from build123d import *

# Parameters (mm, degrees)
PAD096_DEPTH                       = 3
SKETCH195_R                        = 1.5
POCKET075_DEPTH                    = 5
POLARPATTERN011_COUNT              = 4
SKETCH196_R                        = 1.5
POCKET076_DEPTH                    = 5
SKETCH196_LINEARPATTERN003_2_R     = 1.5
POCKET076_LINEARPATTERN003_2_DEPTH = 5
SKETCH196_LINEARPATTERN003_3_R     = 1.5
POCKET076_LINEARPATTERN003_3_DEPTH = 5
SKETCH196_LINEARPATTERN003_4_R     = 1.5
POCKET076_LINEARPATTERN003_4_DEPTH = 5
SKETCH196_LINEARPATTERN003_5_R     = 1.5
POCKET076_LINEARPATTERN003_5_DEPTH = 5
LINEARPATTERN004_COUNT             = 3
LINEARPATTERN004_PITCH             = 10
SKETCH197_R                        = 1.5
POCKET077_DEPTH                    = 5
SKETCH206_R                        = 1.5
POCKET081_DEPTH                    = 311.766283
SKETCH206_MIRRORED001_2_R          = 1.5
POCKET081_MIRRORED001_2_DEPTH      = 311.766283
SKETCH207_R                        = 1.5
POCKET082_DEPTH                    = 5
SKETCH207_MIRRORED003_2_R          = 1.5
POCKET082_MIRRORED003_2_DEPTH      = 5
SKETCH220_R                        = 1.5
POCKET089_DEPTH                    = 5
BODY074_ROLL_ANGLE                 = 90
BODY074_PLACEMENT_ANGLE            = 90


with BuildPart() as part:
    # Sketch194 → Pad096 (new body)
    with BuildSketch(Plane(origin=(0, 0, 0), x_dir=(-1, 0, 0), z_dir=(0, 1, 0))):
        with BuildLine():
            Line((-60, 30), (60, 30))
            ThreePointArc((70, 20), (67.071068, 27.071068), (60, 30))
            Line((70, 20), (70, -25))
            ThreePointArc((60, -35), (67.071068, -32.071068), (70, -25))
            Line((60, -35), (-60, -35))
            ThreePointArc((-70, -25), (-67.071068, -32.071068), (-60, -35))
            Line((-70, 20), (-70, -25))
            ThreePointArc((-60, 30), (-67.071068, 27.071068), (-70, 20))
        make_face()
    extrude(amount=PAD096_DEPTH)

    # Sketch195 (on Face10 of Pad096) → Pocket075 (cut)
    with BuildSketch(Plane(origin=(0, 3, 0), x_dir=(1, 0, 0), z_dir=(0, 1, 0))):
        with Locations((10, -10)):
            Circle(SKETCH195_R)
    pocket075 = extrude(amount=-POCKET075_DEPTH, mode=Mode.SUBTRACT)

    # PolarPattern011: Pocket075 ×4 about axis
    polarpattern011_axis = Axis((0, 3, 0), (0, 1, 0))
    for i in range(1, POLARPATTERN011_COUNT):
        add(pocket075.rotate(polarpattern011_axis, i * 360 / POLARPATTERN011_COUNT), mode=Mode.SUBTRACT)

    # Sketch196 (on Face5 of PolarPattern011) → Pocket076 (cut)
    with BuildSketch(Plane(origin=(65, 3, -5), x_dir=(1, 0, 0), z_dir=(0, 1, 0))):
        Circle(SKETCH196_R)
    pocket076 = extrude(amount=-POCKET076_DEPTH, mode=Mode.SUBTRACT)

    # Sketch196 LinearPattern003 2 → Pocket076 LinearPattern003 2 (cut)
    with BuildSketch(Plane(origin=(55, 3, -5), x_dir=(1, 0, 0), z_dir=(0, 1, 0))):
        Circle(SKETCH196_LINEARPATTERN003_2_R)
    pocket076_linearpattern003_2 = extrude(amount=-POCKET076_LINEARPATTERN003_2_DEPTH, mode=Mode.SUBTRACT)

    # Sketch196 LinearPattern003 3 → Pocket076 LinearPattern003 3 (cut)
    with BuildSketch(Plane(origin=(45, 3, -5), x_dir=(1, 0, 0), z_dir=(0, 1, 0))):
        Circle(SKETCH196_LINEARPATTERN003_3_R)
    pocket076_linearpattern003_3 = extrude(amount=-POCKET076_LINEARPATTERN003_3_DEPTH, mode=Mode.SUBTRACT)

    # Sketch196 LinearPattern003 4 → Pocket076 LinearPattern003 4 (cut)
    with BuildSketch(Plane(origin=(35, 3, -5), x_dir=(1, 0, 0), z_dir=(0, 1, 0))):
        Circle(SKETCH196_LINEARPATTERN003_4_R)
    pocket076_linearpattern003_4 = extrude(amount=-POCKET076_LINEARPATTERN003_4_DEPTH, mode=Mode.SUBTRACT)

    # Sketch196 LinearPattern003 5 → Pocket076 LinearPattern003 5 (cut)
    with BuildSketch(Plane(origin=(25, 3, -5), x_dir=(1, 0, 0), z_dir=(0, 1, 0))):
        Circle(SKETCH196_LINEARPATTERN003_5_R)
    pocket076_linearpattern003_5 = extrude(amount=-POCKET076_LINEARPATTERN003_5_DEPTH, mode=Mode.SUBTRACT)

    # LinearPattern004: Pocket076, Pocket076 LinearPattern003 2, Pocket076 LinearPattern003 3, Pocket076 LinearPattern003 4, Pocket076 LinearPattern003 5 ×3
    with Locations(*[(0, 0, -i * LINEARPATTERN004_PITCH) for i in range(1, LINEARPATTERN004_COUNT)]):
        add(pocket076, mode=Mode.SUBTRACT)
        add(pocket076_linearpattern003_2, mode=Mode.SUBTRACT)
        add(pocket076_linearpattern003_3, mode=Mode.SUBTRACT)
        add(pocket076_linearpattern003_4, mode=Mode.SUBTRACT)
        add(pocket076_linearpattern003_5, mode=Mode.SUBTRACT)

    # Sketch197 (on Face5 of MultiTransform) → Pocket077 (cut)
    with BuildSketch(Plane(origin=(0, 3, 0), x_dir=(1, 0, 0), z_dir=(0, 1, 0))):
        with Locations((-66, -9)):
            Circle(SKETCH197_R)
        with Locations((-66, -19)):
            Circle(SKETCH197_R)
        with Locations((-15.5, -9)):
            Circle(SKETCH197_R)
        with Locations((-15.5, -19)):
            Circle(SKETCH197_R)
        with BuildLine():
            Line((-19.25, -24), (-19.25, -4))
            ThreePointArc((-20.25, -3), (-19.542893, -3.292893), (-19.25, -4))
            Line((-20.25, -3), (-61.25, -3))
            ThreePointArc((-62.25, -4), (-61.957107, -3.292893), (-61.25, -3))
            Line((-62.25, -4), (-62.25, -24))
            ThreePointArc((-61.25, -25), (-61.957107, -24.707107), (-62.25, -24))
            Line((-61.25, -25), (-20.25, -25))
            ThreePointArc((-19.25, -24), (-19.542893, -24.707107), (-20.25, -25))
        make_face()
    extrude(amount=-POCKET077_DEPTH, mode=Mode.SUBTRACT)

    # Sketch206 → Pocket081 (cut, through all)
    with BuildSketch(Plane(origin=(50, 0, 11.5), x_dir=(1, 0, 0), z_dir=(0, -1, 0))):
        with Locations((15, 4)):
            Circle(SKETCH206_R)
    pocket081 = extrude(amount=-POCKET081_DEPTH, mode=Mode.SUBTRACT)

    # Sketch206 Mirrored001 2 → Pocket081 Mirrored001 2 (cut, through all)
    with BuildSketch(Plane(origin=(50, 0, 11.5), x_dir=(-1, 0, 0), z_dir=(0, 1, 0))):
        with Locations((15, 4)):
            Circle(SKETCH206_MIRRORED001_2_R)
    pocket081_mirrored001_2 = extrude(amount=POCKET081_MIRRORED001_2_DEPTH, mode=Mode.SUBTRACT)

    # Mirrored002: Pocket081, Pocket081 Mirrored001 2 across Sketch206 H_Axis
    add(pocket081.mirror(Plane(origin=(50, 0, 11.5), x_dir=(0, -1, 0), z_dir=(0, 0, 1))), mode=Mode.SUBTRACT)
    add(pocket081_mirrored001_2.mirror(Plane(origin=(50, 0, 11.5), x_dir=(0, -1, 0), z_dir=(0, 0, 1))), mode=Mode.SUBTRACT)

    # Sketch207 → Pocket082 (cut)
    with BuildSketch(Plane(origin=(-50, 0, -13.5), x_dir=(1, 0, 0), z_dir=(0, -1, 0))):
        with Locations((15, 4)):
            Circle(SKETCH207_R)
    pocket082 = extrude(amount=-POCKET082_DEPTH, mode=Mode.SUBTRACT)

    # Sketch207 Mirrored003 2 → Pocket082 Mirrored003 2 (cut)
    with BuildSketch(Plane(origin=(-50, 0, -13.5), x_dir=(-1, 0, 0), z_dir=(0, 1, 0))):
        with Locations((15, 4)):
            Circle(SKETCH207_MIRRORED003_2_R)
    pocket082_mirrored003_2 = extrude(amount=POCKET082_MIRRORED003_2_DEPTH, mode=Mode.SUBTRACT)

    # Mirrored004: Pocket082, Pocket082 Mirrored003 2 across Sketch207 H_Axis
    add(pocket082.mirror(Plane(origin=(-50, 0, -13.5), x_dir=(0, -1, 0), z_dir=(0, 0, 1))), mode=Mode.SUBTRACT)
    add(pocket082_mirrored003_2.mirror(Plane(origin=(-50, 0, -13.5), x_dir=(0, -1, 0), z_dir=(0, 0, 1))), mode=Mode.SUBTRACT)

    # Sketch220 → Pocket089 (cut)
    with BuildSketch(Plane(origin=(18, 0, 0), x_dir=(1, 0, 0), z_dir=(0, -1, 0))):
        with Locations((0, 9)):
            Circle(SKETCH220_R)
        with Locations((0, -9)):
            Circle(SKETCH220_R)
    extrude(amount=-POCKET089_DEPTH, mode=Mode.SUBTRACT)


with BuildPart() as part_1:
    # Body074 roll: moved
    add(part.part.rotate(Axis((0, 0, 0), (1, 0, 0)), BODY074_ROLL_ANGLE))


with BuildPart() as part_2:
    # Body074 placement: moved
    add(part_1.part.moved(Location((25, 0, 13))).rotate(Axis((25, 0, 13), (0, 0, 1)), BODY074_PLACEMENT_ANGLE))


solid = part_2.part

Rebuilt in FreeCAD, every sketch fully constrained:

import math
import FreeCAD as App
import Part
import Sketcher
Q = App.Units.Quantity

doc = App.newDocument("Part")
body = doc.addObject("PartDesign::Body", "Body")

# Sketch on XZ plane
sketch1 = body.newObject("Sketcher::SketchObject", "Sketch")
sketch1.AttachmentSupport = (doc.getObject("XZ_Plane"), [""])
sketch1.MapMode = "FlatFace"
sketch1.addGeometry(Part.LineSegment(App.Vector(-60, 30, 0), App.Vector(60, 30, 0)), False)
sketch1.addGeometry(Part.ArcOfCircle(Part.Circle(App.Vector(60.000001, 20.000001, 0), App.Vector(0, 0, 1), 9.999999), math.radians(-0.000004), math.radians(90.000004)), False)
sketch1.addGeometry(Part.LineSegment(App.Vector(70, 20, 0), App.Vector(70, -25, 0)), False)
sketch1.addGeometry(Part.ArcOfCircle(Part.Circle(App.Vector(60.000001, -25.000001, 0), App.Vector(0, 0, 1), 9.999999), math.radians(-90.000004), math.radians(0.000004)), False)
sketch1.addGeometry(Part.LineSegment(App.Vector(60, -35, 0), App.Vector(-60, -35, 0)), False)
sketch1.addGeometry(Part.ArcOfCircle(Part.Circle(App.Vector(-60.000001, -25.000001, 0), App.Vector(0, 0, 1), 9.999999), math.radians(179.999996), math.radians(270.000004)), False)
sketch1.addGeometry(Part.LineSegment(App.Vector(-70, -25, 0), App.Vector(-70, 20, 0)), False)
sketch1.addGeometry(Part.ArcOfCircle(Part.Circle(App.Vector(-60.000001, 20.000001, 0), App.Vector(0, 0, 1), 9.999999), math.radians(89.999996), math.radians(180.000004)), False)
sketch1.addConstraint(Sketcher.Constraint("Tangent", 0, 2, 1, 2))
sketch1.addConstraint(Sketcher.Constraint("Tangent", 1, 1, 2, 1))
sketch1.addConstraint(Sketcher.Constraint("Tangent", 2, 2, 3, 2))
sketch1.addConstraint(Sketcher.Constraint("Tangent", 3, 1, 4, 1))
sketch1.addConstraint(Sketcher.Constraint("Tangent", 4, 2, 5, 2))
sketch1.addConstraint(Sketcher.Constraint("Tangent", 5, 1, 6, 1))
sketch1.addConstraint(Sketcher.Constraint("Tangent", 6, 2, 7, 2))
sketch1.addConstraint(Sketcher.Constraint("Tangent", 7, 1, 0, 1))
sketch1.addConstraint(Sketcher.Constraint("Horizontal", 0))
sketch1.addConstraint(Sketcher.Constraint("Vertical", 2))
sketch1.addConstraint(Sketcher.Constraint("Horizontal", 4))
sketch1.addConstraint(Sketcher.Constraint("Vertical", 6))
sketch1.addConstraint(Sketcher.Constraint("Equal", 1, 3))
sketch1.addConstraint(Sketcher.Constraint("Equal", 3, 5))
sketch1.addConstraint(Sketcher.Constraint("Equal", 5, 7))
sketch1.addConstraint(Sketcher.Constraint("Radius", 1, Q("9.999999 mm")))
sketch1.addConstraint(Sketcher.Constraint("DistanceX", 0, 1, 0, 2, Q("120 mm")))
sketch1.addConstraint(Sketcher.Constraint("DistanceY", 2, 2, 2, 1, Q("45 mm")))
sketch1.addConstraint(Sketcher.Constraint("DistanceX", -1, 1, 1, 3, Q("60.000001 mm")))
sketch1.addConstraint(Sketcher.Constraint("DistanceY", -1, 1, 1, 3, Q("20.000001 mm")))
pad1 = body.newObject("PartDesign::Pad", "Pad")
pad1.Profile = sketch1
pad1.Length = 3
pad1.Reversed = True

# Sketch on XZ plane
sketch2 = body.newObject("Sketcher::SketchObject", "Sketch001")
sketch2.AttachmentSupport = (doc.getObject("XZ_Plane"), [""])
sketch2.MapMode = "FlatFace"
sketch2.AttachmentOffset = App.Placement(App.Vector(0, 0, -3), App.Rotation())
sketch2.addGeometry(Part.Circle(App.Vector(10, 10, 0), App.Vector(0, 0, 1), 1.5), False)
sketch2.addConstraint(Sketcher.Constraint("Diameter", 0, Q("3 mm")))
sketch2.addConstraint(Sketcher.Constraint("DistanceX", -1, 1, 0, 3, Q("10 mm")))
sketch2.addConstraint(Sketcher.Constraint("DistanceY", -1, 1, 0, 3, Q("10 mm")))
pocket1 = body.newObject("PartDesign::Pocket", "Pocket")
pocket1.Profile = sketch2
pocket1.Length = 5
pocket1.Reversed = True
doc.recompute()

polarpattern = body.newObject("PartDesign::PolarPattern", "PolarPattern")
polarpattern.Originals = [pocket1]
polarpattern.Axis = (doc.getObject("Y_Axis"), [""])
polarpattern.Angle = 360
polarpattern.Occurrences = 4
body.Tip = polarpattern

# Sketch on XZ plane
sketch3 = body.newObject("Sketcher::SketchObject", "Sketch002")
sketch3.AttachmentSupport = (doc.getObject("XZ_Plane"), [""])
sketch3.MapMode = "FlatFace"
sketch3.AttachmentOffset = App.Placement(App.Vector(0, 0, -3), App.Rotation())
sketch3.addGeometry(Part.Circle(App.Vector(65, -5, 0), App.Vector(0, 0, 1), 1.5), False)
sketch3.addConstraint(Sketcher.Constraint("Diameter", 0, Q("3 mm")))
sketch3.addConstraint(Sketcher.Constraint("DistanceX", -1, 1, 0, 3, Q("65 mm")))
sketch3.addConstraint(Sketcher.Constraint("DistanceY", 0, 3, -1, 1, Q("5 mm")))
pocket2 = body.newObject("PartDesign::Pocket", "Pocket001")
pocket2.Profile = sketch3
pocket2.Length = 5
pocket2.Reversed = True

# Sketch on XZ plane
sketch4 = body.newObject("Sketcher::SketchObject", "Sketch003")
sketch4.AttachmentSupport = (doc.getObject("XZ_Plane"), [""])
sketch4.MapMode = "FlatFace"
sketch4.AttachmentOffset = App.Placement(App.Vector(0, 0, -3), App.Rotation())
sketch4.addGeometry(Part.Circle(App.Vector(55, -5, 0), App.Vector(0, 0, 1), 1.5), False)
sketch4.addConstraint(Sketcher.Constraint("Diameter", 0, Q("3 mm")))
sketch4.addConstraint(Sketcher.Constraint("DistanceX", -1, 1, 0, 3, Q("55 mm")))
sketch4.addConstraint(Sketcher.Constraint("DistanceY", 0, 3, -1, 1, Q("5 mm")))
pocket3 = body.newObject("PartDesign::Pocket", "Pocket002")
pocket3.Profile = sketch4
pocket3.Length = 5
pocket3.Reversed = True

# Sketch on XZ plane
sketch5 = body.newObject("Sketcher::SketchObject", "Sketch004")
sketch5.AttachmentSupport = (doc.getObject("XZ_Plane"), [""])
sketch5.MapMode = "FlatFace"
sketch5.AttachmentOffset = App.Placement(App.Vector(0, 0, -3), App.Rotation())
sketch5.addGeometry(Part.Circle(App.Vector(45, -5, 0), App.Vector(0, 0, 1), 1.5), False)
sketch5.addConstraint(Sketcher.Constraint("Diameter", 0, Q("3 mm")))
sketch5.addConstraint(Sketcher.Constraint("DistanceX", -1, 1, 0, 3, Q("45 mm")))
sketch5.addConstraint(Sketcher.Constraint("DistanceY", 0, 3, -1, 1, Q("5 mm")))
pocket4 = body.newObject("PartDesign::Pocket", "Pocket003")
pocket4.Profile = sketch5
pocket4.Length = 5
pocket4.Reversed = True

# Sketch on XZ plane
sketch6 = body.newObject("Sketcher::SketchObject", "Sketch005")
sketch6.AttachmentSupport = (doc.getObject("XZ_Plane"), [""])
sketch6.MapMode = "FlatFace"
sketch6.AttachmentOffset = App.Placement(App.Vector(0, 0, -3), App.Rotation())
sketch6.addGeometry(Part.Circle(App.Vector(35, -5, 0), App.Vector(0, 0, 1), 1.5), False)
sketch6.addConstraint(Sketcher.Constraint("Diameter", 0, Q("3 mm")))
sketch6.addConstraint(Sketcher.Constraint("DistanceX", -1, 1, 0, 3, Q("35 mm")))
sketch6.addConstraint(Sketcher.Constraint("DistanceY", 0, 3, -1, 1, Q("5 mm")))
pocket5 = body.newObject("PartDesign::Pocket", "Pocket004")
pocket5.Profile = sketch6
pocket5.Length = 5
pocket5.Reversed = True

# Sketch on XZ plane
sketch7 = body.newObject("Sketcher::SketchObject", "Sketch006")
sketch7.AttachmentSupport = (doc.getObject("XZ_Plane"), [""])
sketch7.MapMode = "FlatFace"
sketch7.AttachmentOffset = App.Placement(App.Vector(0, 0, -3), App.Rotation())
sketch7.addGeometry(Part.Circle(App.Vector(25, -5, 0), App.Vector(0, 0, 1), 1.5), False)
sketch7.addConstraint(Sketcher.Constraint("Diameter", 0, Q("3 mm")))
sketch7.addConstraint(Sketcher.Constraint("DistanceX", -1, 1, 0, 3, Q("25 mm")))
sketch7.addConstraint(Sketcher.Constraint("DistanceY", 0, 3, -1, 1, Q("5 mm")))
pocket6 = body.newObject("PartDesign::Pocket", "Pocket005")
pocket6.Profile = sketch7
pocket6.Length = 5
pocket6.Reversed = True
doc.recompute()

linearpattern = body.newObject("PartDesign::LinearPattern", "LinearPattern")
linearpattern.Originals = [pocket2, pocket3, pocket4, pocket5, pocket6]
linearpattern.Direction = (doc.getObject("Z_Axis"), [""])
linearpattern.Mode = "offset"
linearpattern.Offset = 10
linearpattern.Occurrences = 3
linearpattern.Reversed = True
body.Tip = linearpattern

# Sketch on XZ plane
sketch8 = body.newObject("Sketcher::SketchObject", "Sketch007")
sketch8.AttachmentSupport = (doc.getObject("XZ_Plane"), [""])
sketch8.MapMode = "FlatFace"
sketch8.AttachmentOffset = App.Placement(App.Vector(0, 0, -3), App.Rotation())
sketch8.addGeometry(Part.Circle(App.Vector(-66, 9, 0), App.Vector(0, 0, 1), 1.5), False)
sketch8.addGeometry(Part.Circle(App.Vector(-66, 19, 0), App.Vector(0, 0, 1), 1.5), False)
sketch8.addGeometry(Part.Circle(App.Vector(-15.5, 9, 0), App.Vector(0, 0, 1), 1.5), False)
sketch8.addGeometry(Part.Circle(App.Vector(-15.5, 19, 0), App.Vector(0, 0, 1), 1.5), False)
sketch8.addGeometry(Part.LineSegment(App.Vector(-19.25, 24, 0), App.Vector(-19.25, 4, 0)), False)
sketch8.addGeometry(Part.ArcOfCircle(Part.Circle(App.Vector(-20.249999, 3.999999, 0), App.Vector(0, 0, 1), 0.999999), math.radians(-90.000043), math.radians(0.000043)), False)
sketch8.addGeometry(Part.LineSegment(App.Vector(-20.25, 3, 0), App.Vector(-61.25, 3, 0)), False)
sketch8.addGeometry(Part.ArcOfCircle(Part.Circle(App.Vector(-61.250001, 3.999999, 0), App.Vector(0, 0, 1), 0.999999), math.radians(179.999957), math.radians(270.000043)), False)
sketch8.addGeometry(Part.LineSegment(App.Vector(-62.25, 4, 0), App.Vector(-62.25, 24, 0)), False)
sketch8.addGeometry(Part.ArcOfCircle(Part.Circle(App.Vector(-61.250001, 24.000001, 0), App.Vector(0, 0, 1), 0.999999), math.radians(89.999957), math.radians(180.000043)), False)
sketch8.addGeometry(Part.LineSegment(App.Vector(-61.25, 25, 0), App.Vector(-20.25, 25, 0)), False)
sketch8.addGeometry(Part.ArcOfCircle(Part.Circle(App.Vector(-20.249999, 24.000001, 0), App.Vector(0, 0, 1), 0.999999), math.radians(-0.000043), math.radians(90.000043)), False)
sketch8.addConstraint(Sketcher.Constraint("Tangent", 4, 2, 5, 2))
sketch8.addConstraint(Sketcher.Constraint("Tangent", 5, 1, 6, 1))
sketch8.addConstraint(Sketcher.Constraint("Tangent", 6, 2, 7, 2))
sketch8.addConstraint(Sketcher.Constraint("Tangent", 7, 1, 8, 1))
sketch8.addConstraint(Sketcher.Constraint("Tangent", 8, 2, 9, 2))
sketch8.addConstraint(Sketcher.Constraint("Tangent", 9, 1, 10, 1))
sketch8.addConstraint(Sketcher.Constraint("Tangent", 10, 2, 11, 2))
sketch8.addConstraint(Sketcher.Constraint("Tangent", 11, 1, 4, 1))
sketch8.addConstraint(Sketcher.Constraint("Vertical", 4))
sketch8.addConstraint(Sketcher.Constraint("Horizontal", 6))
sketch8.addConstraint(Sketcher.Constraint("Vertical", 8))
sketch8.addConstraint(Sketcher.Constraint("Horizontal", 10))
sketch8.addConstraint(Sketcher.Constraint("Equal", 0, 1))
sketch8.addConstraint(Sketcher.Constraint("Equal", 1, 2))
sketch8.addConstraint(Sketcher.Constraint("Equal", 2, 3))
sketch8.addConstraint(Sketcher.Constraint("Equal", 5, 7))
sketch8.addConstraint(Sketcher.Constraint("Equal", 7, 9))
sketch8.addConstraint(Sketcher.Constraint("Equal", 9, 11))
sketch8.addConstraint(Sketcher.Constraint("Horizontal", 0, 3, 2, 3))
sketch8.addConstraint(Sketcher.Constraint("Horizontal", 1, 3, 3, 3))
sketch8.addConstraint(Sketcher.Constraint("Vertical", 0, 3, 1, 3))
sketch8.addConstraint(Sketcher.Constraint("Vertical", 2, 3, 3, 3))
sketch8.addConstraint(Sketcher.Constraint("Diameter", 0, Q("3 mm")))
sketch8.addConstraint(Sketcher.Constraint("Radius", 5, Q("0.999999 mm")))
sketch8.addConstraint(Sketcher.Constraint("DistanceX", 6, 2, 6, 1, Q("41 mm")))
sketch8.addConstraint(Sketcher.Constraint("DistanceY", 4, 2, 4, 1, Q("20 mm")))
sketch8.addConstraint(Sketcher.Constraint("DistanceX", 0, 3, -1, 1, Q("66 mm")))
sketch8.addConstraint(Sketcher.Constraint("DistanceY", -1, 1, 0, 3, Q("9 mm")))
sketch8.addConstraint(Sketcher.Constraint("DistanceY", -1, 1, 1, 3, Q("19 mm")))
sketch8.addConstraint(Sketcher.Constraint("DistanceY", -1, 1, 5, 3, Q("3.999999 mm")))
sketch8.addConstraint(Sketcher.Constraint("DistanceX", 2, 3, -1, 1, Q("15.5 mm")))
sketch8.addConstraint(Sketcher.Constraint("DistanceX", 5, 3, -1, 1, Q("20.249999 mm")))
pocket7 = body.newObject("PartDesign::Pocket", "Pocket006")
pocket7.Profile = sketch8
pocket7.Length = 5
pocket7.Reversed = True

# Sketch on XZ plane
sketch9 = body.newObject("Sketcher::SketchObject", "Sketch008")
sketch9.AttachmentSupport = (doc.getObject("XZ_Plane"), [""])
sketch9.MapMode = "FlatFace"
sketch9.addGeometry(Part.Circle(App.Vector(65, 15.5, 0), App.Vector(0, 0, 1), 1.5), False)
sketch9.addConstraint(Sketcher.Constraint("Diameter", 0, Q("3 mm")))
sketch9.addConstraint(Sketcher.Constraint("DistanceX", -1, 1, 0, 3, Q("65 mm")))
sketch9.addConstraint(Sketcher.Constraint("DistanceY", -1, 1, 0, 3, Q("15.5 mm")))
pocket8 = body.newObject("PartDesign::Pocket", "Pocket007")
pocket8.Profile = sketch9
pocket8.Type = "ThroughAll"

# Sketch on XZ plane
sketch10 = body.newObject("Sketcher::SketchObject", "Sketch009")
sketch10.AttachmentSupport = (doc.getObject("XZ_Plane"), [""])
sketch10.MapMode = "FlatFace"
sketch10.addGeometry(Part.Circle(App.Vector(35, 15.5, 0), App.Vector(0, 0, 1), 1.5), False)
sketch10.addConstraint(Sketcher.Constraint("Diameter", 0, Q("3 mm")))
sketch10.addConstraint(Sketcher.Constraint("DistanceX", -1, 1, 0, 3, Q("35 mm")))
sketch10.addConstraint(Sketcher.Constraint("DistanceY", -1, 1, 0, 3, Q("15.5 mm")))
pocket9 = body.newObject("PartDesign::Pocket", "Pocket008")
pocket9.Profile = sketch10
pocket9.Type = "ThroughAll"
doc.recompute()

datumplane = body.newObject("PartDesign::Plane", "DatumPlane")
datumplane.AttachmentSupport = (doc.getObject("XY_Plane"), [""])
datumplane.MapMode = "FlatFace"
datumplane.AttachmentOffset = App.Placement(App.Vector(0, 0, 11.5), App.Rotation())
mirrored = body.newObject("PartDesign::Mirrored", "Mirrored")
mirrored.Originals = [pocket8, pocket9]
mirrored.MirrorPlane = (datumplane, [""])
body.Tip = mirrored

# Sketch on XZ plane
sketch11 = body.newObject("Sketcher::SketchObject", "Sketch010")
sketch11.AttachmentSupport = (doc.getObject("XZ_Plane"), [""])
sketch11.MapMode = "FlatFace"
sketch11.addGeometry(Part.Circle(App.Vector(-35, -9.5, 0), App.Vector(0, 0, 1), 1.5), False)
sketch11.addConstraint(Sketcher.Constraint("Diameter", 0, Q("3 mm")))
sketch11.addConstraint(Sketcher.Constraint("DistanceX", 0, 3, -1, 1, Q("35 mm")))
sketch11.addConstraint(Sketcher.Constraint("DistanceY", 0, 3, -1, 1, Q("9.5 mm")))
pocket10 = body.newObject("PartDesign::Pocket", "Pocket009")
pocket10.Profile = sketch11
pocket10.Length = 5

# Sketch on XZ plane
sketch12 = body.newObject("Sketcher::SketchObject", "Sketch011")
sketch12.AttachmentSupport = (doc.getObject("XZ_Plane"), [""])
sketch12.MapMode = "FlatFace"
sketch12.addGeometry(Part.Circle(App.Vector(-65, -9.5, 0), App.Vector(0, 0, 1), 1.5), False)
sketch12.addConstraint(Sketcher.Constraint("Diameter", 0, Q("3 mm")))
sketch12.addConstraint(Sketcher.Constraint("DistanceX", 0, 3, -1, 1, Q("65 mm")))
sketch12.addConstraint(Sketcher.Constraint("DistanceY", 0, 3, -1, 1, Q("9.5 mm")))
pocket11 = body.newObject("PartDesign::Pocket", "Pocket010")
pocket11.Profile = sketch12
pocket11.Length = 5
doc.recompute()

datumplane2 = body.newObject("PartDesign::Plane", "DatumPlane001")
datumplane2.AttachmentSupport = (doc.getObject("XY_Plane"), [""])
datumplane2.MapMode = "FlatFace"
datumplane2.AttachmentOffset = App.Placement(App.Vector(0, 0, -13.5), App.Rotation())
mirrored2 = body.newObject("PartDesign::Mirrored", "Mirrored001")
mirrored2.Originals = [pocket10, pocket11]
mirrored2.MirrorPlane = (datumplane2, [""])
body.Tip = mirrored2

# Sketch on XZ plane
sketch13 = body.newObject("Sketcher::SketchObject", "Sketch012")
sketch13.AttachmentSupport = (doc.getObject("XZ_Plane"), [""])
sketch13.MapMode = "FlatFace"
sketch13.addGeometry(Part.Circle(App.Vector(18, 9, 0), App.Vector(0, 0, 1), 1.5), False)
sketch13.addGeometry(Part.Circle(App.Vector(18, -9, 0), App.Vector(0, 0, 1), 1.5), False)
sketch13.addConstraint(Sketcher.Constraint("Equal", 0, 1))
sketch13.addConstraint(Sketcher.Constraint("Symmetric", 0, 3, 1, 3, -1))
sketch13.addConstraint(Sketcher.Constraint("Diameter", 0, Q("3 mm")))
sketch13.addConstraint(Sketcher.Constraint("DistanceX", -1, 1, 0, 3, Q("18 mm")))
sketch13.addConstraint(Sketcher.Constraint("DistanceY", -1, 1, 0, 3, Q("9 mm")))
pocket12 = body.newObject("PartDesign::Pocket", "Pocket011")
pocket12.Profile = sketch13
pocket12.Length = 5
body2 = doc.addObject("PartDesign::Body", "Body001")
doc.recompute()

body.Placement = App.Placement(App.Vector(0, 0, 0), App.Rotation(App.Vector(1, 0, 0), 90))
boolean = body2.newObject("PartDesign::Boolean", "Boolean")
boolean.Type = "Fuse"
boolean.addObjects([body])
body3 = doc.addObject("PartDesign::Body", "Body002")
doc.recompute()

body2.Placement = App.Placement(App.Vector(25, 0, 13), App.Rotation(App.Vector(0, 0, 1), 90))
boolean2 = body3.newObject("PartDesign::Boolean", "Boolean001")
boolean2.Type = "Fuse"
boolean2.addObjects([body2])

doc.recompute()
